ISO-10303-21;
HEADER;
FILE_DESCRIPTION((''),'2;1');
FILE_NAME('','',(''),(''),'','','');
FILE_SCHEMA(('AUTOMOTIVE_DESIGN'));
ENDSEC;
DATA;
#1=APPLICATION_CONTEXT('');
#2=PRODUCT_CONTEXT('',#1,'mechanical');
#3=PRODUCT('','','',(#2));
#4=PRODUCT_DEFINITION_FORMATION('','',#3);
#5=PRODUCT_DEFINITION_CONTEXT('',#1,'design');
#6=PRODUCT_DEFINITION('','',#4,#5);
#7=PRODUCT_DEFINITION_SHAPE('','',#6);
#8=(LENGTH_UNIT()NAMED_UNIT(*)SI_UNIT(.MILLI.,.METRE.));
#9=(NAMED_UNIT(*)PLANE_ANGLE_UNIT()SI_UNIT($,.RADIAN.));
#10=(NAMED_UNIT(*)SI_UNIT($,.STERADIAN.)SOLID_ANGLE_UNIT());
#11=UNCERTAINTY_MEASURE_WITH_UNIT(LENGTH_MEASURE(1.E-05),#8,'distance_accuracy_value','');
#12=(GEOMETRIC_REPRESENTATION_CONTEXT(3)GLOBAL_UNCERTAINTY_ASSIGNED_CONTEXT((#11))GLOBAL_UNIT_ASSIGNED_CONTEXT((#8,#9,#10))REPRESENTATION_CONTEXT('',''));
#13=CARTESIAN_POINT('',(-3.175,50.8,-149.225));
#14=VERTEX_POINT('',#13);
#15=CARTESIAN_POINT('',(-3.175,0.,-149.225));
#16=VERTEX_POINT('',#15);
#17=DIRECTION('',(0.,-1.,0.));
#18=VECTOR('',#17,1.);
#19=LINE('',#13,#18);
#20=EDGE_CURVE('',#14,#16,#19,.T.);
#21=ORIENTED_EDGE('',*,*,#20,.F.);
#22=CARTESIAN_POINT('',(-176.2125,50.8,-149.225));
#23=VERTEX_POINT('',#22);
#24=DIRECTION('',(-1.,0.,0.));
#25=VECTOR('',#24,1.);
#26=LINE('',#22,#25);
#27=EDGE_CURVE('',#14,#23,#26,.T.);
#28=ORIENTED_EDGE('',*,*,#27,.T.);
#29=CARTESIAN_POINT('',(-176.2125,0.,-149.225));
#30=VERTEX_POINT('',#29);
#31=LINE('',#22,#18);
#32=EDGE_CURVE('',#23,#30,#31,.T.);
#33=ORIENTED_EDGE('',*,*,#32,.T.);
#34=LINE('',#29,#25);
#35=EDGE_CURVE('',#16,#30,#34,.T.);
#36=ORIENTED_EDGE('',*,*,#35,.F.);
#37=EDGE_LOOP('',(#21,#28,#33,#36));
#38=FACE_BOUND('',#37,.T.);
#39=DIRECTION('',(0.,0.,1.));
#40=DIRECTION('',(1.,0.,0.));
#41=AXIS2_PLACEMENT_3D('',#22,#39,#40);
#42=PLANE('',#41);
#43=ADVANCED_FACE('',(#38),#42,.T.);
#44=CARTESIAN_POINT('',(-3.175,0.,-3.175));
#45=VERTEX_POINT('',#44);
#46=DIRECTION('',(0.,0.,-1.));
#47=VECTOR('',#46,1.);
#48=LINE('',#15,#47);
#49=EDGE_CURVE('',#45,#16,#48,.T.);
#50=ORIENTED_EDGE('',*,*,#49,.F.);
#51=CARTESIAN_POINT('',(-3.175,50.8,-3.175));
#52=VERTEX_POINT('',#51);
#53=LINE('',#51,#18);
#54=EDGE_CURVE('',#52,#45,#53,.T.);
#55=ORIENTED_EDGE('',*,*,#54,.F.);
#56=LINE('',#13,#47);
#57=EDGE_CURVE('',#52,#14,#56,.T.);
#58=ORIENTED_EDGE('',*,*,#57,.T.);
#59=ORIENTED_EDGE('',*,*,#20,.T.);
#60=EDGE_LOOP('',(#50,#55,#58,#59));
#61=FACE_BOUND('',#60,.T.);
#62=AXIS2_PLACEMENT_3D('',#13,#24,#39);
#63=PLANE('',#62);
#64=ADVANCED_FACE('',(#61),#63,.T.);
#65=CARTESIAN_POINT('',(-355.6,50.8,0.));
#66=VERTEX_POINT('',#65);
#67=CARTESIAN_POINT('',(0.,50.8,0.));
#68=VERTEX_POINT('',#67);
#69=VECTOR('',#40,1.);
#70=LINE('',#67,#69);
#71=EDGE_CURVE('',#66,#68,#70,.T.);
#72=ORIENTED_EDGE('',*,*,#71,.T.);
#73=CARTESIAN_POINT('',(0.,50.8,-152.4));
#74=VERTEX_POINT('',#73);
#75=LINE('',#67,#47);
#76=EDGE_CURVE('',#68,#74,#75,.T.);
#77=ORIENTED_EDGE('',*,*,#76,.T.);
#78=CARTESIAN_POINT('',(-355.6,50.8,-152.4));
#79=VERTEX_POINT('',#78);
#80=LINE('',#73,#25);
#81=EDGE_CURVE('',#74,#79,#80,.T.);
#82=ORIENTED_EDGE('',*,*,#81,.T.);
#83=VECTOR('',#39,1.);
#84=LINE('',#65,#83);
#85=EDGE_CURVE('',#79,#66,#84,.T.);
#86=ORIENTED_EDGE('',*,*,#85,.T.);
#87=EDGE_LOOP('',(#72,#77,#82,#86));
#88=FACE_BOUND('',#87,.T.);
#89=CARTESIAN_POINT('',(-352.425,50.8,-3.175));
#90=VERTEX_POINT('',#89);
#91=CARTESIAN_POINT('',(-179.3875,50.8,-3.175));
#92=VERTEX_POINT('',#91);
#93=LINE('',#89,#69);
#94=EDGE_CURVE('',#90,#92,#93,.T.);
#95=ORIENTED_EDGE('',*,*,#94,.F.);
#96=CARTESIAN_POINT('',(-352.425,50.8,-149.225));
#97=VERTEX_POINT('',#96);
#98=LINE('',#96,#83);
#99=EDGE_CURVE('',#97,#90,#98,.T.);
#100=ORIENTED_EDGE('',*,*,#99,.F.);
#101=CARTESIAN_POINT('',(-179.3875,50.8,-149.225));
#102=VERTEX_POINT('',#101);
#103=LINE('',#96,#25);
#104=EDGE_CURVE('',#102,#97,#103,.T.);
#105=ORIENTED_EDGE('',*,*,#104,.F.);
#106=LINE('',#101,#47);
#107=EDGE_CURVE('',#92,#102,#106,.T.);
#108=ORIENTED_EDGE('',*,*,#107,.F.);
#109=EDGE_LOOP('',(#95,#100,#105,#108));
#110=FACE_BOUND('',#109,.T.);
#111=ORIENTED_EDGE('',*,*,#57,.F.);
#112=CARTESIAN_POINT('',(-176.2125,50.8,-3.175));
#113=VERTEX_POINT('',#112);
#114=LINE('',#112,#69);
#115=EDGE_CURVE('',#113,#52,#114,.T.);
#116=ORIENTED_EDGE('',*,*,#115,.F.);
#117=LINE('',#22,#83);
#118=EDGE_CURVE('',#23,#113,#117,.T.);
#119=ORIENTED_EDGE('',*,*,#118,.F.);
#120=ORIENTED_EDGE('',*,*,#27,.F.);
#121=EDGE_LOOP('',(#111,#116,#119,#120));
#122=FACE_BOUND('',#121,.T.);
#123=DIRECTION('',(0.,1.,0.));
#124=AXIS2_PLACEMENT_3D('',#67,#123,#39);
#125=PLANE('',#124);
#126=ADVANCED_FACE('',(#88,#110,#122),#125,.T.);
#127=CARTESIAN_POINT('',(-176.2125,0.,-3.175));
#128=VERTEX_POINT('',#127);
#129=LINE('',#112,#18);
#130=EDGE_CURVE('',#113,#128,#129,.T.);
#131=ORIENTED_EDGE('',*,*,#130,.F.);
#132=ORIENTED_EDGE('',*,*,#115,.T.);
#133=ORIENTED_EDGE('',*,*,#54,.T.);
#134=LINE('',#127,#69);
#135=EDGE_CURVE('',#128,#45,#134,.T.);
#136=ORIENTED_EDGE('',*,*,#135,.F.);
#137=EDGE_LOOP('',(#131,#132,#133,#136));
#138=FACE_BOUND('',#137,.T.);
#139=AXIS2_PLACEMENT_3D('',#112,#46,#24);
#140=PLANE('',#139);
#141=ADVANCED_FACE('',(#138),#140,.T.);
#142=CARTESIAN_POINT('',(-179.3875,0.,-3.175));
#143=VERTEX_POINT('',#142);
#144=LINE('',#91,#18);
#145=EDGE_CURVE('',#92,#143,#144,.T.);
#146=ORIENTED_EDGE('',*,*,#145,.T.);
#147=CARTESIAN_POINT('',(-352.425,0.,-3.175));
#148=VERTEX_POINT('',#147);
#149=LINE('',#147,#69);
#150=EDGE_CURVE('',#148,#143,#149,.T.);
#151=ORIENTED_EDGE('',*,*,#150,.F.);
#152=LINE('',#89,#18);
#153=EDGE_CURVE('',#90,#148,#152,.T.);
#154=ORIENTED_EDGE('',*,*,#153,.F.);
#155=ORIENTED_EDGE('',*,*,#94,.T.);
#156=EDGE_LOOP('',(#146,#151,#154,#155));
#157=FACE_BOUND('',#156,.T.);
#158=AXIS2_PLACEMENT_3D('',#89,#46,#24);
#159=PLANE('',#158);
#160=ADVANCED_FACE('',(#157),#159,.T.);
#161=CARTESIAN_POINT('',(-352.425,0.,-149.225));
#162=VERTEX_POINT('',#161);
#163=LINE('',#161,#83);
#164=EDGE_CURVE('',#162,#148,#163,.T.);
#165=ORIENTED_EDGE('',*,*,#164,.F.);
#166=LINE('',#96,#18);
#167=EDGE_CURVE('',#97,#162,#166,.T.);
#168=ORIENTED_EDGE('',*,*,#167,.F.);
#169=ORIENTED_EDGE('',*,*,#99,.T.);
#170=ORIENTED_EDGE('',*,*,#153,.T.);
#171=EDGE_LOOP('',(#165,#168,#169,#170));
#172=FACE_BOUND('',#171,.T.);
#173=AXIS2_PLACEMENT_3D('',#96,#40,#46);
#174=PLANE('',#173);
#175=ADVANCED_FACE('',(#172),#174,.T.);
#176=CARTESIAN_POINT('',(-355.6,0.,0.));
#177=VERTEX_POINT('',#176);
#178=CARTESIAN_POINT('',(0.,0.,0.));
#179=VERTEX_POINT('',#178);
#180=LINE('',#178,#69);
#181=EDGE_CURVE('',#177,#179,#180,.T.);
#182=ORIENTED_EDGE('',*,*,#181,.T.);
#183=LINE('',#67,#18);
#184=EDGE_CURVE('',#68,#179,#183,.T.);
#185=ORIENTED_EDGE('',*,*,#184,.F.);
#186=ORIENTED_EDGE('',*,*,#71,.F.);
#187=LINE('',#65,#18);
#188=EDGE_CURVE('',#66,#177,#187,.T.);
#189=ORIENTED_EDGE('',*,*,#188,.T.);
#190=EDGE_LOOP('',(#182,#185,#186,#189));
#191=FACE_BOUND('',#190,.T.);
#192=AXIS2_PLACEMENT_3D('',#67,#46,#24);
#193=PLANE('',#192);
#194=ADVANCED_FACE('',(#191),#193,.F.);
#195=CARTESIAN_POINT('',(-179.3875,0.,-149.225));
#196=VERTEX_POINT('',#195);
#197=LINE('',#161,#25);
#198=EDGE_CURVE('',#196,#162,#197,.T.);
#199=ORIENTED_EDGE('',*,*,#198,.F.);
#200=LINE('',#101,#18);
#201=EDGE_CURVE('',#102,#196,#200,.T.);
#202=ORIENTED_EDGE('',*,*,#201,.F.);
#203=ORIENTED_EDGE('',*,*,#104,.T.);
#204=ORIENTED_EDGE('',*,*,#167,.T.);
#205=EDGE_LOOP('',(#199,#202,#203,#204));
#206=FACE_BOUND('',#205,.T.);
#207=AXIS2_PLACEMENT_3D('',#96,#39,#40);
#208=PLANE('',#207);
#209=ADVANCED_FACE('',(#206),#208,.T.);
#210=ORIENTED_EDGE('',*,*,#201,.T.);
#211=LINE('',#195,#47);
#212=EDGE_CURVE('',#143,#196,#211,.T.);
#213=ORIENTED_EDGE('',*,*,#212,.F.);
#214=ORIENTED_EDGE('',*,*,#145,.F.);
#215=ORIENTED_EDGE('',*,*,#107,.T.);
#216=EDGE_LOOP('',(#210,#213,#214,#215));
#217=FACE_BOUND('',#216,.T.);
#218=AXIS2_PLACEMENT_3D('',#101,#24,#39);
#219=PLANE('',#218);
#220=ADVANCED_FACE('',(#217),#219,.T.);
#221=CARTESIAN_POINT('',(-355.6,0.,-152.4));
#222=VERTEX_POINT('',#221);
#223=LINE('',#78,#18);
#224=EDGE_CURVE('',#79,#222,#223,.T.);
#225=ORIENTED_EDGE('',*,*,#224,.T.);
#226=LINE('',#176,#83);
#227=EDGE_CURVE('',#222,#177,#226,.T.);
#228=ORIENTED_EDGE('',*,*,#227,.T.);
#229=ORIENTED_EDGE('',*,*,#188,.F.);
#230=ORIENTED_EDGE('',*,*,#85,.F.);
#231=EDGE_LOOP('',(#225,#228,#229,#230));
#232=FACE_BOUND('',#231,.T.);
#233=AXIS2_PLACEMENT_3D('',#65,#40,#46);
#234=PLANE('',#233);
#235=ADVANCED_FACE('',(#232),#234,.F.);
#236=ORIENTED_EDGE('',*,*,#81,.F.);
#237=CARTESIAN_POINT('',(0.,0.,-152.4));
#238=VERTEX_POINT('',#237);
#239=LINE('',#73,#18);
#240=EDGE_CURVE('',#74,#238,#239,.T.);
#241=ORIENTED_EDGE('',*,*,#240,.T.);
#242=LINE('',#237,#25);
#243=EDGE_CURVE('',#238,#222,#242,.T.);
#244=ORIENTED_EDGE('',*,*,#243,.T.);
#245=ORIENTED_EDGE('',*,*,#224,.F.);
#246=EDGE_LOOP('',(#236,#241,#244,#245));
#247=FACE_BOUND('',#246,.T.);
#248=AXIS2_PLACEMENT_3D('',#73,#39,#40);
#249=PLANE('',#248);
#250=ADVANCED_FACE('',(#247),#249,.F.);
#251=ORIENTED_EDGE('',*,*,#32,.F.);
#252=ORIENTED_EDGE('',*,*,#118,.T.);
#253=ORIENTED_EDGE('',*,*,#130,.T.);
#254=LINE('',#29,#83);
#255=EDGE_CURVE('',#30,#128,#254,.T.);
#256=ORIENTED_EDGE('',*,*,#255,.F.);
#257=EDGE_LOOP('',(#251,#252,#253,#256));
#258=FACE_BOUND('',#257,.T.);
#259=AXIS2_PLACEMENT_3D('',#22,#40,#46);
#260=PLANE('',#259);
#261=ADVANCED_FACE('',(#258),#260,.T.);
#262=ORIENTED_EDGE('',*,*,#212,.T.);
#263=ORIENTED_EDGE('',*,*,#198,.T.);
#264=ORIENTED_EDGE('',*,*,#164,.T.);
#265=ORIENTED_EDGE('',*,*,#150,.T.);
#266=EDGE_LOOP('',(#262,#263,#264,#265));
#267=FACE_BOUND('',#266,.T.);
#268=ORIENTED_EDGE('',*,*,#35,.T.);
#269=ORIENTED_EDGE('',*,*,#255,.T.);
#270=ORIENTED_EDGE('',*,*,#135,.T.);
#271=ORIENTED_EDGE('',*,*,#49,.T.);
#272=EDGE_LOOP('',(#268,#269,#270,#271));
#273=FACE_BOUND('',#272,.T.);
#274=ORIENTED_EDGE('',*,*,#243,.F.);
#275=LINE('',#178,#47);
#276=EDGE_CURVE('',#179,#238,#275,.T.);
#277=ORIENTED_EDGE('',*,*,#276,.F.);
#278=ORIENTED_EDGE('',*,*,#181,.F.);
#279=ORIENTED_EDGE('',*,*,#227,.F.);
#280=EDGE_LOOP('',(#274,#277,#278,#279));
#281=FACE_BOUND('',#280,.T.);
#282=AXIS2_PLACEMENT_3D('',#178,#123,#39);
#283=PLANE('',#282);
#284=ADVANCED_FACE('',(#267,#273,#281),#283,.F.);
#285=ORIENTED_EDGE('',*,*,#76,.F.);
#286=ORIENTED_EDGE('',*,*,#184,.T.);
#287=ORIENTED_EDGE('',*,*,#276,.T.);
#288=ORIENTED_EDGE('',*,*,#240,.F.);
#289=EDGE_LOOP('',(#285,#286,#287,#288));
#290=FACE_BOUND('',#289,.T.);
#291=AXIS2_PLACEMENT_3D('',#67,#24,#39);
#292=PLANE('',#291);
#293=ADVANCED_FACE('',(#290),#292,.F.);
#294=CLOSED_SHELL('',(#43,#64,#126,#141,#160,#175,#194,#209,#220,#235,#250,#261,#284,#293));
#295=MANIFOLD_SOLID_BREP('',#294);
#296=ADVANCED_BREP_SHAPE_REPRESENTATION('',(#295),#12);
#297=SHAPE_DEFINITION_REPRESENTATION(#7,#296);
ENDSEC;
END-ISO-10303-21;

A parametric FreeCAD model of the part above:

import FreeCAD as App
import Part
import Sketcher

V = App.Vector
Q = App.Units.Quantity

doc = App.newDocument("Part")
body = doc.addObject("PartDesign::Body", "Body")

# Sketch on XZ plane
sketch1 = body.newObject("Sketcher::SketchObject", "Sketch")
sketch1.AttachmentSupport = (doc.getObject("XZ_Plane"), [""])
sketch1.MapMode = "FlatFace"
sketch1.addGeometry([
    Part.LineSegment(V(-356, -152, 0), V(-356, 0, 0)),  # 0
    Part.LineSegment(V(-356, 0, 0), V(0, 0, 0)),  # 1
    Part.LineSegment(V(0, 0, 0), V(0, -152, 0)),  # 2
    Part.LineSegment(V(0, -152, 0), V(-356, -152, 0)),  # 3
    Part.LineSegment(V(-179, -3, 0), V(-352, -3, 0)),  # 4
    Part.LineSegment(V(-352, -3, 0), V(-352, -149, 0)),  # 5
    Part.LineSegment(V(-352, -149, 0), V(-179, -149, 0)),  # 6
    Part.LineSegment(V(-179, -149, 0), V(-179, -3, 0)),  # 7
    Part.LineSegment(V(-3, -3, 0), V(-176, -3, 0)),  # 8
    Part.LineSegment(V(-176, -3, 0), V(-176, -149, 0)),  # 9
    Part.LineSegment(V(-176, -149, 0), V(-3, -149, 0)),  # 10
    Part.LineSegment(V(-3, -149, 0), V(-3, -3, 0)),  # 11
], False)
sketch1.addConstraint([
    Sketcher.Constraint("Coincident", 0, 2, 1, 1),
    Sketcher.Constraint("Coincident", 1, 2, 2, 1),
    Sketcher.Constraint("Coincident", 2, 2, 3, 1),
    Sketcher.Constraint("Coincident", 3, 2, 0, 1),
    Sketcher.Constraint("Coincident", 4, 2, 5, 1),
    Sketcher.Constraint("Coincident", 5, 2, 6, 1),
    Sketcher.Constraint("Coincident", 6, 2, 7, 1),
    Sketcher.Constraint("Coincident", 7, 2, 4, 1),
    Sketcher.Constraint("Coincident", 8, 2, 9, 1),
    Sketcher.Constraint("Coincident", 9, 2, 10, 1),
    Sketcher.Constraint("Coincident", 10, 2, 11, 1),
    Sketcher.Constraint("Coincident", 11, 2, 8, 1),
    Sketcher.Constraint("Vertical", 0),
    Sketcher.Constraint("Horizontal", 1),
    Sketcher.Constraint("Vertical", 2),
    Sketcher.Constraint("Horizontal", 3),
    Sketcher.Constraint("Horizontal", 4),
    Sketcher.Constraint("Vertical", 5),
    Sketcher.Constraint("Horizontal", 6),
    Sketcher.Constraint("Vertical", 7),
    Sketcher.Constraint("Horizontal", 8),
    Sketcher.Constraint("Vertical", 9),
    Sketcher.Constraint("Horizontal", 10),
    Sketcher.Constraint("Vertical", 11),
    Sketcher.Constraint("Coincident", 1, 2, -1, 1),
    Sketcher.Constraint("Horizontal", 7, 2, 8, 2),
    Sketcher.Constraint("Horizontal", 6, 2, 9, 2),
    Sketcher.Constraint("Equal", 6, 8),
    Sketcher.Constraint("DistanceX", 1, 1, 1, 2, Q("14 in")),
    Sketcher.Constraint("DistanceY", 0, 1, 0, 2, Q("6 in")),
    Sketcher.Constraint("DistanceY", 5, 2, 5, 1, Q("5.75 in")),
    Sketcher.Constraint("DistanceX", 4, 2, 4, 1, Q("6.8125 in")),
    Sketcher.Constraint("DistanceX", 4, 2, -1, 1, Q("13.875 in")),
    Sketcher.Constraint("DistanceY", 4, 2, -1, 1, Q("0.125 in")),
    Sketcher.Constraint("DistanceX", 8, 2, -1, 1, Q("6.9375 in")),
])
pad1 = body.newObject("PartDesign::Pad", "Pad")
pad1.Profile = sketch1
pad1.Length = Q("2 in")
pad1.Reversed = True

doc.recompute()
